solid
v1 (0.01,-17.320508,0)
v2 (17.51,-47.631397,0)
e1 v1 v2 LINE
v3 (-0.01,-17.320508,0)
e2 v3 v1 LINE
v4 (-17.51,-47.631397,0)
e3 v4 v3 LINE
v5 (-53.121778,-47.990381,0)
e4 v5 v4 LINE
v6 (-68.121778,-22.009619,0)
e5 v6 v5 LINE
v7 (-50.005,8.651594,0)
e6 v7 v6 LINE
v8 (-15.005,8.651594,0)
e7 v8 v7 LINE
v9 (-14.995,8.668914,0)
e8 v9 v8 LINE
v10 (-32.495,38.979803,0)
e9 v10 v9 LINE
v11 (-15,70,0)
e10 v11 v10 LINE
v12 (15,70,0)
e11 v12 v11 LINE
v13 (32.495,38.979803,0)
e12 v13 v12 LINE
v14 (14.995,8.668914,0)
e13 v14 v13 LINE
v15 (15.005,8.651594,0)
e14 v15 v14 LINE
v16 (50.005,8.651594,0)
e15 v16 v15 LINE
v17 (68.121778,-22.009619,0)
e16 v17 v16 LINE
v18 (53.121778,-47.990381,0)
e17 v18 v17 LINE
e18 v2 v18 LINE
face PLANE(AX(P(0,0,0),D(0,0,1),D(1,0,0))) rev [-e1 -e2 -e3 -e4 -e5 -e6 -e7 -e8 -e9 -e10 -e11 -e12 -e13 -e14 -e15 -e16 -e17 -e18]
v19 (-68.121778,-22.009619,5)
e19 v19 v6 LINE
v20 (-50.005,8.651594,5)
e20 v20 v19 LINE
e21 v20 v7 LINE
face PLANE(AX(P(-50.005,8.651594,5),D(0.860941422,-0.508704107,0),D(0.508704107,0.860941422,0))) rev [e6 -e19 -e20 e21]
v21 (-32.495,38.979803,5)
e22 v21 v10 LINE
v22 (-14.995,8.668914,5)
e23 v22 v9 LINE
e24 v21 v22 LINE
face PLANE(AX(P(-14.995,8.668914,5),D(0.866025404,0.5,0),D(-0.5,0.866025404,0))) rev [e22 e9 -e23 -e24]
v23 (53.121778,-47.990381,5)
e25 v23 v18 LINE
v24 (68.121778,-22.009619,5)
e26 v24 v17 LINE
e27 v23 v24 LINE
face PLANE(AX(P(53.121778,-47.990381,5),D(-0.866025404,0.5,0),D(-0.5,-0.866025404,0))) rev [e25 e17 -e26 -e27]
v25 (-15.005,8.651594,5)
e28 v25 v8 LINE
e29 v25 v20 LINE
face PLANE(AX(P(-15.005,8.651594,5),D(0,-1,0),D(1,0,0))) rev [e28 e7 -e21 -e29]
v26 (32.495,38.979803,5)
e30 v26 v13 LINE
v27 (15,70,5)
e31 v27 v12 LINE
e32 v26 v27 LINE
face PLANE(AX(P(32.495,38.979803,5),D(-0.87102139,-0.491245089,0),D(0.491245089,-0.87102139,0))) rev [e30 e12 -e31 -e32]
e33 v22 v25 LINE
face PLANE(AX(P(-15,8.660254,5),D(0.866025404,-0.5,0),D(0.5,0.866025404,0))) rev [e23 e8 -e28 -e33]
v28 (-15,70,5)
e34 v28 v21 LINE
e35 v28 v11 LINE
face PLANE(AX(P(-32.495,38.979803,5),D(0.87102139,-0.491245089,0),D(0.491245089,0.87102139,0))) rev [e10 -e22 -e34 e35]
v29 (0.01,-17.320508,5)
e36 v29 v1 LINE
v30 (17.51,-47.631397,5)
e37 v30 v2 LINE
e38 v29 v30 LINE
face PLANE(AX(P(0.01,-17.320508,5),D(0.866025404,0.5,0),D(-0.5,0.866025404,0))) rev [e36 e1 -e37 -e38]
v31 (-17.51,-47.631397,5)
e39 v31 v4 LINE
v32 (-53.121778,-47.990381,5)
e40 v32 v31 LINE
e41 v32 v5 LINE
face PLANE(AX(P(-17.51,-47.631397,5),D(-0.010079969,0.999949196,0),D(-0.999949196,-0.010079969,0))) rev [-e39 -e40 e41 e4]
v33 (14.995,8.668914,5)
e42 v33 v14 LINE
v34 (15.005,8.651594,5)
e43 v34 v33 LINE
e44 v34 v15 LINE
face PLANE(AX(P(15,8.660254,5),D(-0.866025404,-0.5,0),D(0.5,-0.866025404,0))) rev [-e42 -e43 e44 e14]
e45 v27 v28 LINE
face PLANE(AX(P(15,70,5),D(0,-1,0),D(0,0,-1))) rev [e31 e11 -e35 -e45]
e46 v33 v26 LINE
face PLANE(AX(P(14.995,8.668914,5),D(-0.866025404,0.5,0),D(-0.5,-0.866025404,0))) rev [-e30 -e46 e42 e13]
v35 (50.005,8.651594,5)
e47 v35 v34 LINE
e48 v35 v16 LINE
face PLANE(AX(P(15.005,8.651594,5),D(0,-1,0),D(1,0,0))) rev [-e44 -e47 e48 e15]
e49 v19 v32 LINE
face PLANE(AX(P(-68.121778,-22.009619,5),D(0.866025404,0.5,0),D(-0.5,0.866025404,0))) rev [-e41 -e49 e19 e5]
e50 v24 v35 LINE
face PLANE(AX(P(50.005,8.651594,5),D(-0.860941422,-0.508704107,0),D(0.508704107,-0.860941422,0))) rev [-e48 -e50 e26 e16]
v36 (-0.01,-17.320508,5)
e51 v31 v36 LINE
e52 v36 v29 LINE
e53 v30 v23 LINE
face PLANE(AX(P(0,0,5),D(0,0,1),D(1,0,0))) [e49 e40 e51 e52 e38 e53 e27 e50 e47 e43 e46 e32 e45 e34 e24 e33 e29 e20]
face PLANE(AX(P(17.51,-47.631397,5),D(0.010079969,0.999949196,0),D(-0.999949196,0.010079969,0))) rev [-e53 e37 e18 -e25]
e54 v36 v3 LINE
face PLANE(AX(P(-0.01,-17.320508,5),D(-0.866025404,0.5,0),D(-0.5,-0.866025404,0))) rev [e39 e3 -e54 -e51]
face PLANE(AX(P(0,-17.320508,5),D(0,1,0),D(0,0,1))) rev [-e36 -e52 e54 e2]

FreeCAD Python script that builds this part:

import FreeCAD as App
import Part
import Sketcher

V = App.Vector
Q = App.Units.Quantity

doc = App.newDocument("Part")
body = doc.addObject("PartDesign::Body", "Body")

# Sketch on XY plane
sketch1 = body.newObject("Sketcher::SketchObject", "Sketch")
sketch1.AttachmentSupport = (doc.getObject("XY_Plane"), [""])
sketch1.MapMode = "FlatFace"
sketch1.addGeometry([
    Part.LineSegment(V(-15, 70, 0), V(-32.495, 38.98, 0)),  # 0
    Part.LineSegment(V(-32.495, 38.98, 0), V(-14.995, 8.669, 0)),  # 1
    Part.LineSegment(V(-14.995, 8.669, 0), V(-15.005, 8.652, 0)),  # 2
    Part.LineSegment(V(-15.005, 8.652, 0), V(-50.005, 8.652, 0)),  # 3
    Part.LineSegment(V(-50.005, 8.652, 0), V(-68.122, -22.01, 0)),  # 4
    Part.LineSegment(V(-68.122, -22.01, 0), V(-53.122, -47.99, 0)),  # 5
    Part.LineSegment(V(-53.122, -47.99, 0), V(-17.51, -47.631, 0)),  # 6
    Part.LineSegment(V(-17.51, -47.631, 0), V(-0.01, -17.321, 0)),  # 7
    Part.LineSegment(V(-0.01, -17.321, 0), V(0.01, -17.321, 0)),  # 8
    Part.LineSegment(V(0.01, -17.321, 0), V(17.51, -47.631, 0)),  # 9
    Part.LineSegment(V(17.51, -47.631, 0), V(53.122, -47.99, 0)),  # 10
    Part.LineSegment(V(53.122, -47.99, 0), V(68.122, -22.01, 0)),  # 11
    Part.LineSegment(V(68.122, -22.01, 0), V(50.005, 8.652, 0)),  # 12
    Part.LineSegment(V(50.005, 8.652, 0), V(15.005, 8.652, 0)),  # 13
    Part.LineSegment(V(15.005, 8.652, 0), V(14.995, 8.669, 0)),  # 14
    Part.LineSegment(V(14.995, 8.669, 0), V(32.495, 38.98, 0)),  # 15
    Part.LineSegment(V(32.495, 38.98, 0), V(15, 70, 0)),  # 16
    Part.LineSegment(V(15, 70, 0), V(-15, 70, 0)),  # 17
], False)
sketch1.addConstraint([
    Sketcher.Constraint("Coincident", 0, 2, 1, 1),
    Sketcher.Constraint("Coincident", 1, 2, 2, 1),
    Sketcher.Constraint("Coincident", 2, 2, 3, 1),
    Sketcher.Constraint("Coincident", 3, 2, 4, 1),
    Sketcher.Constraint("Coincident", 4, 2, 5, 1),
    Sketcher.Constraint("Coincident", 5, 2, 6, 1),
    Sketcher.Constraint("Coincident", 6, 2, 7, 1),
    Sketcher.Constraint("Coincident", 7, 2, 8, 1),
    Sketcher.Constraint("Coincident", 8, 2, 9, 1),
    Sketcher.Constraint("Coincident", 9, 2, 10, 1),
    Sketcher.Constraint("Coincident", 10, 2, 11, 1),
    Sketcher.Constraint("Coincident", 11, 2, 12, 1),
    Sketcher.Constraint("Coincident", 12, 2, 13, 1),
    Sketcher.Constraint("Coincident", 13, 2, 14, 1),
    Sketcher.Constraint("Coincident", 14, 2, 15, 1),
    Sketcher.Constraint("Coincident", 15, 2, 16, 1),
    Sketcher.Constraint("Coincident", 16, 2, 17, 1),
    Sketcher.Constraint("Coincident", 17, 2, 0, 1),
    Sketcher.Constraint("Horizontal", 3),
    Sketcher.Constraint("Horizontal", 8),
    Sketcher.Constraint("Horizontal", 13),
    Sketcher.Constraint("Horizontal", 17),
    Sketcher.Constraint("Symmetric", 6, 2, 9, 2, -2),
    Sketcher.Constraint("Symmetric", 5, 2, 10, 2, -2),
    Sketcher.Constraint("Symmetric", 4, 2, 11, 2, -2),
    Sketcher.Constraint("Symmetric", 3, 2, 12, 2, -2),
    Sketcher.Constraint("Symmetric", 1, 2, 14, 2, -2),
    Sketcher.Constraint("Symmetric", 0, 2, 15, 2, -2),
    Sketcher.Constraint("Parallel", 1, 5),
    Sketcher.Constraint("Parallel", 2, 7),
    Sketcher.Constraint("Parallel", 5, 9),
    Sketcher.Constraint("Parallel", 7, 11),
    Sketcher.Constraint("Parallel", 9, 14),
    Sketcher.Constraint("Equal", 0, 4),
    Sketcher.Constraint("Equal", 4, 6),
    Sketcher.Constraint("Equal", 1, 7),
    Sketcher.Constraint("Equal", 12, 16),
    Sketcher.Constraint("DistanceX", 3, 2, 3, 1, Q("35 mm")),
    Sketcher.Constraint("DistanceX", 17, 2, 17, 1, Q("30 mm")),
    Sketcher.Constraint("Angle", 1, Q("-60 deg")),
    Sketcher.Constraint("Distance", 1, Q("35 mm")),
    Sketcher.Constraint("Distance", 5, Q("30 mm")),
    Sketcher.Constraint("DistanceY", -1, 1, 16, 2, Q("70 mm")),
    Sketcher.Constraint("DistanceX", 1, 2, 13, 2, Q("30 mm")),
    Sketcher.Constraint("DistanceX", 8, 1, 8, 2, Q("0.02 mm")),
    Sketcher.Constraint("Distance", 2, Q("0.02 mm")),
    Sketcher.Constraint("DistanceY", 7, 2, 2, 2, Q("25.972102 mm")),
    Sketcher.Constraint("DistanceX", 4, 2, -1, 1, Q("68.121778 mm")),
])
pad1 = body.newObject("PartDesign::Pad", "Pad")
pad1.Profile = sketch1
pad1.Length = 5

doc.recompute()
